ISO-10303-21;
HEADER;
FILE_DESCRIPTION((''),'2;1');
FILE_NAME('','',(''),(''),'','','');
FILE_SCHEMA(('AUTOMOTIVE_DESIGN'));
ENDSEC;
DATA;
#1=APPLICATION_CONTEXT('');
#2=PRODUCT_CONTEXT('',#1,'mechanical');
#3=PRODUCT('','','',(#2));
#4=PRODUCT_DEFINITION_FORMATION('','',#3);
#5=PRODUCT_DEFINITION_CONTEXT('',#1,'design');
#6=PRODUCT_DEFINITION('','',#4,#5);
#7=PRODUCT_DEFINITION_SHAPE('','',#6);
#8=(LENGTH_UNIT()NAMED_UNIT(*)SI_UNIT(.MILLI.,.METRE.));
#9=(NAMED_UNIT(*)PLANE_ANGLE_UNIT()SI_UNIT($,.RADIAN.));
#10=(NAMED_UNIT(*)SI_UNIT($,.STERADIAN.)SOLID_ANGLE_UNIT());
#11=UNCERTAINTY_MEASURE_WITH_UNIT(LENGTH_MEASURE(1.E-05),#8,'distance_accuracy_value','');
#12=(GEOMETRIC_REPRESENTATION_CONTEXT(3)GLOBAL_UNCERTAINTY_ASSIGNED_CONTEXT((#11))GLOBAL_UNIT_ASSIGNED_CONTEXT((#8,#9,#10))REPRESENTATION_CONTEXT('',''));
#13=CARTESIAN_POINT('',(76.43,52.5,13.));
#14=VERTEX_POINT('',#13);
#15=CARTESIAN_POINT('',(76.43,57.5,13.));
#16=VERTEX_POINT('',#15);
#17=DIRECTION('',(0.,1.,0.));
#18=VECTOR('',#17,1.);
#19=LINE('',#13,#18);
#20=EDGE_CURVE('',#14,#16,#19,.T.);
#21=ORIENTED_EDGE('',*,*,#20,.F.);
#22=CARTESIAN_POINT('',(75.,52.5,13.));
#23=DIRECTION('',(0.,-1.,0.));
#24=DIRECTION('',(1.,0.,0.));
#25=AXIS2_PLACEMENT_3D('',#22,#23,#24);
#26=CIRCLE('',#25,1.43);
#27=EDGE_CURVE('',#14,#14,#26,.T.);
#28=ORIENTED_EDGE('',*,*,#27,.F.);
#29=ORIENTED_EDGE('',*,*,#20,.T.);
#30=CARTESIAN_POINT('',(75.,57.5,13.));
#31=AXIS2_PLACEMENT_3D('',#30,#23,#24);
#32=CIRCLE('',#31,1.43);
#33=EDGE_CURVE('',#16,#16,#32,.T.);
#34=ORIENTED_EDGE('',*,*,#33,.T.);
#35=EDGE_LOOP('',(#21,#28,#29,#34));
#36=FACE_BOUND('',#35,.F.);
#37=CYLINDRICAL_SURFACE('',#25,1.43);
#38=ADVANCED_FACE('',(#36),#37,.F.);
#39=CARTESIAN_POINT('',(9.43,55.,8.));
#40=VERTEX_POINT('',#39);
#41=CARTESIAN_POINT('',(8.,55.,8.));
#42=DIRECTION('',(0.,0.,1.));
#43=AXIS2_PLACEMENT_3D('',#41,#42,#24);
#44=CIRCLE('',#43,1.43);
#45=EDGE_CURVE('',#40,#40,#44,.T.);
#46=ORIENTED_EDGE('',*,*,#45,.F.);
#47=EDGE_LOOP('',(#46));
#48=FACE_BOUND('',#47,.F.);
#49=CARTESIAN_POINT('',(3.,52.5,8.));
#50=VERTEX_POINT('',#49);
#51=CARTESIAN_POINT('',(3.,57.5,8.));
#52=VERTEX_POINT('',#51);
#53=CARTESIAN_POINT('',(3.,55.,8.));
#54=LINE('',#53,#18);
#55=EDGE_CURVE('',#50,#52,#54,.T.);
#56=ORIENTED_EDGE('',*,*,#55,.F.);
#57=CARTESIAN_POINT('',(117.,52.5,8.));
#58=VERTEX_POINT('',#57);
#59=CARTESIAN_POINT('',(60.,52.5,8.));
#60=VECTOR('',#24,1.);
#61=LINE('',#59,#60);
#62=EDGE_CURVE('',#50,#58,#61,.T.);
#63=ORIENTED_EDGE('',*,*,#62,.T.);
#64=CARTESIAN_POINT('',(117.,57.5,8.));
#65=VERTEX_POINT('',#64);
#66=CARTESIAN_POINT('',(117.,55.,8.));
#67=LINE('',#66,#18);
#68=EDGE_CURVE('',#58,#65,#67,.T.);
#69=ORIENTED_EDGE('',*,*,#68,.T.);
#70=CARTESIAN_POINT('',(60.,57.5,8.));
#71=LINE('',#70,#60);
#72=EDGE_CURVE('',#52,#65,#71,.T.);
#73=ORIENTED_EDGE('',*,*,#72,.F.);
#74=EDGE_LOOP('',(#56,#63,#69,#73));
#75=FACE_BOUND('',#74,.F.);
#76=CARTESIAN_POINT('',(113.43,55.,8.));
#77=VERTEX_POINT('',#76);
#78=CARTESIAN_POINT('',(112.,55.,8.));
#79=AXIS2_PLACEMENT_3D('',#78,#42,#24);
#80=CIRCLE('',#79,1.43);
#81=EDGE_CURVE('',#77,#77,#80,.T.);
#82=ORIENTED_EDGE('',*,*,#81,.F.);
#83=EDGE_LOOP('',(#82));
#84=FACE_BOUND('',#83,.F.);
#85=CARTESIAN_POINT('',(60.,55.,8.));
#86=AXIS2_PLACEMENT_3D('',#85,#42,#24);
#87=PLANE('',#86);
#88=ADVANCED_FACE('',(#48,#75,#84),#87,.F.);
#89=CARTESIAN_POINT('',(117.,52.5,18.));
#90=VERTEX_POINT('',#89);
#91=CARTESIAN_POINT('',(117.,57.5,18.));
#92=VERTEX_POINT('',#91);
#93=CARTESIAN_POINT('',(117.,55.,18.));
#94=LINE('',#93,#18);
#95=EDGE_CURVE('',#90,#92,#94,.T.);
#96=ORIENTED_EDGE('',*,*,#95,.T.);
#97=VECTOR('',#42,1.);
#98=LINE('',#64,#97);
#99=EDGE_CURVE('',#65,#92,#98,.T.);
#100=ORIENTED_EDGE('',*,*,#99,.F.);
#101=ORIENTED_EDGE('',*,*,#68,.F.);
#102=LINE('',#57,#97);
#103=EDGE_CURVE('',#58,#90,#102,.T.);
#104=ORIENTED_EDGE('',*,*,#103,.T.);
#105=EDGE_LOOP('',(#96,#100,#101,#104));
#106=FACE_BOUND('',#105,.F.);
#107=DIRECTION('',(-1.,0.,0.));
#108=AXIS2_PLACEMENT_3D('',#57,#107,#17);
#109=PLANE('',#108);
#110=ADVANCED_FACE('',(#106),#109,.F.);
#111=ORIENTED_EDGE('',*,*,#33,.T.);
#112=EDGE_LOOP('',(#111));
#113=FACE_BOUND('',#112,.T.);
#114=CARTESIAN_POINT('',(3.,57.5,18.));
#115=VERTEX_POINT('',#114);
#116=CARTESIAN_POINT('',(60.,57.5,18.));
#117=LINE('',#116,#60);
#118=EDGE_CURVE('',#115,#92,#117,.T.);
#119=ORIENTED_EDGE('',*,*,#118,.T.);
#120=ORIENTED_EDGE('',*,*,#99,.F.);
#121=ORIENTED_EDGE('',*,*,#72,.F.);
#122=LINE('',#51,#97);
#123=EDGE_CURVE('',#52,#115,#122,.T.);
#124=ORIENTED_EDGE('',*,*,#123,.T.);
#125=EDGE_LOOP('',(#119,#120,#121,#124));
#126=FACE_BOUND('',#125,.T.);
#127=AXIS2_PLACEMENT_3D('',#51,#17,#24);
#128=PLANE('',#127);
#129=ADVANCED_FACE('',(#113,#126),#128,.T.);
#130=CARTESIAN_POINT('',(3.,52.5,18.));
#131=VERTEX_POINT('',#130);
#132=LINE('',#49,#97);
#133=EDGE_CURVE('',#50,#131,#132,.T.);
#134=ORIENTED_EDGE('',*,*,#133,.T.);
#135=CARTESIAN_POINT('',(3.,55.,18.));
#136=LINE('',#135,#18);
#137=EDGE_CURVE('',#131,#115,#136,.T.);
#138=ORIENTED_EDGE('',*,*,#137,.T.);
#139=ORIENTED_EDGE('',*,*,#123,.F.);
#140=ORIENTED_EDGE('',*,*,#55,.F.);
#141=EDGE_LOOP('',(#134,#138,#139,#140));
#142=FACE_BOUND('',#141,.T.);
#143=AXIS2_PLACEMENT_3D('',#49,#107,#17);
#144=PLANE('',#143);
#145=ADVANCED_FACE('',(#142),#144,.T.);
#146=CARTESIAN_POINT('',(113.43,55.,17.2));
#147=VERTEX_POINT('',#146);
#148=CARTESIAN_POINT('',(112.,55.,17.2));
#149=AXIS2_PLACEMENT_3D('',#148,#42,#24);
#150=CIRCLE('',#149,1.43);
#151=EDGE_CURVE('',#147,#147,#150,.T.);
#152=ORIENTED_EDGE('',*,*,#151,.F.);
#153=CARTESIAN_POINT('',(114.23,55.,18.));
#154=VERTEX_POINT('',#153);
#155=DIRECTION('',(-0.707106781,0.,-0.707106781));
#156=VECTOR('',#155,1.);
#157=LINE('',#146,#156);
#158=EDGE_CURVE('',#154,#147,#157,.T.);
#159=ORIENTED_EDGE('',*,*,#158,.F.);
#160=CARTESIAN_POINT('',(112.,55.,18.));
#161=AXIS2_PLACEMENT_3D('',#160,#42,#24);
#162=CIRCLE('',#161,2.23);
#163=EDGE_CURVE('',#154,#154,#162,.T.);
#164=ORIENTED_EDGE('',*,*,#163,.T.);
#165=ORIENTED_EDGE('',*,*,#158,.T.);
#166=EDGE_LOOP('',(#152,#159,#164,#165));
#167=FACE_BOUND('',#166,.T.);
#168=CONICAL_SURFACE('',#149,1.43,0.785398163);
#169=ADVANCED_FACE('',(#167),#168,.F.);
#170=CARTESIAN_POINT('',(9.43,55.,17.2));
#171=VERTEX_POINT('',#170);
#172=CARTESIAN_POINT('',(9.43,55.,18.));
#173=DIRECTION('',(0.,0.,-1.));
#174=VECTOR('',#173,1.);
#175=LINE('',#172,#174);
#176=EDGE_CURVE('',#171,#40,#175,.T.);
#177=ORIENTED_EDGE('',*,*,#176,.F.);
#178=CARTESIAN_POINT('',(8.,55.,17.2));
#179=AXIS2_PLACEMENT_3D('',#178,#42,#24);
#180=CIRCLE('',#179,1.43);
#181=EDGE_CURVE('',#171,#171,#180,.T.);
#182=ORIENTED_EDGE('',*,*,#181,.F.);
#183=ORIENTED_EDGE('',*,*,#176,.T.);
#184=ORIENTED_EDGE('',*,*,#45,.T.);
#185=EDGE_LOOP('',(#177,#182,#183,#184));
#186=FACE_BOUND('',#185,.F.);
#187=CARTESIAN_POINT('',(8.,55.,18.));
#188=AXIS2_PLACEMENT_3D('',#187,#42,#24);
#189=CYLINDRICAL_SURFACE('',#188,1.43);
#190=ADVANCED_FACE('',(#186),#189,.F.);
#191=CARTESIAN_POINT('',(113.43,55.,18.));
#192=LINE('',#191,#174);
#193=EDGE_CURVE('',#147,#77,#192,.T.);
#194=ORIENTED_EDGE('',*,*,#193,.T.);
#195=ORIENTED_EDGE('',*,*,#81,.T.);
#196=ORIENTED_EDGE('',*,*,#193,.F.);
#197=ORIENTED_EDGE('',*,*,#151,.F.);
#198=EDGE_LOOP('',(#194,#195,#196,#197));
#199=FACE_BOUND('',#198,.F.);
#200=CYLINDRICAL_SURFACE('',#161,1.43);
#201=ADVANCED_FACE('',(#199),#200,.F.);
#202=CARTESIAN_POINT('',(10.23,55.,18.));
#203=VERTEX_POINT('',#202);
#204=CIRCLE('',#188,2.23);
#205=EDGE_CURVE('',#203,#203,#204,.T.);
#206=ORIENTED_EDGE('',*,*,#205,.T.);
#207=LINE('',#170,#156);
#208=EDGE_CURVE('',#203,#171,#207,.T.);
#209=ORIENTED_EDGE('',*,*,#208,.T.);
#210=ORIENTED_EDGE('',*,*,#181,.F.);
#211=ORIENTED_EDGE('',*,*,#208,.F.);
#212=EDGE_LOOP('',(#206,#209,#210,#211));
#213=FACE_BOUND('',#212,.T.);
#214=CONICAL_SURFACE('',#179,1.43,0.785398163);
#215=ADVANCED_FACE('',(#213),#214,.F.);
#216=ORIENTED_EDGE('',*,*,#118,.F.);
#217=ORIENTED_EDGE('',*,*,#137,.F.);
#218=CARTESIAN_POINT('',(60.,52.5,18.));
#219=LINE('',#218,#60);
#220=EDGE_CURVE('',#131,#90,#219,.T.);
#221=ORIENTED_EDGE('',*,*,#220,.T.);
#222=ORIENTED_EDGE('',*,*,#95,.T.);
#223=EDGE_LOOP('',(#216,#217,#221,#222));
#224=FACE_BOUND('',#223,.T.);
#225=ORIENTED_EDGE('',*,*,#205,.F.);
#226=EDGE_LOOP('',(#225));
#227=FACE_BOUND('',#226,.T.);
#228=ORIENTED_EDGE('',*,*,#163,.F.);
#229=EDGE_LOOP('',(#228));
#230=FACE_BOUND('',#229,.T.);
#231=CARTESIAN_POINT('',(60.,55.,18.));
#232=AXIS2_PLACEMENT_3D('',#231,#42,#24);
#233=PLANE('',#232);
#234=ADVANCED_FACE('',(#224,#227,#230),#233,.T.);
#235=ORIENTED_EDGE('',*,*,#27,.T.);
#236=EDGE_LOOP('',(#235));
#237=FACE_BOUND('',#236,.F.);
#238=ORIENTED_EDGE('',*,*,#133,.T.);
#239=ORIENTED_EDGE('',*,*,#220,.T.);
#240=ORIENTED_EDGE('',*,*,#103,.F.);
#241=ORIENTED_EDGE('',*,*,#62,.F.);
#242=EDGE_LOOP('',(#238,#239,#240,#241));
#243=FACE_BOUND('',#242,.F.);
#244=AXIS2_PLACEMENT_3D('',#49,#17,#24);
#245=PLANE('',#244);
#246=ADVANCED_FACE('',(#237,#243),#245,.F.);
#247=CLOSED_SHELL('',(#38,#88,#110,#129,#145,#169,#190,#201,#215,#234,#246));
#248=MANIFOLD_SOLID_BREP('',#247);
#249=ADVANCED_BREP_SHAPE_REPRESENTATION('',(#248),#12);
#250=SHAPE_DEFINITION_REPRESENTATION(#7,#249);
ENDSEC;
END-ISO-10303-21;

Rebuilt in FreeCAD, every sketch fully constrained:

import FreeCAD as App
import Part
import Sketcher


def edges_at(feature, points):
    """Names of the edges that pass closest to the given points."""
    edges = feature.Shape.Edges
    near = lambda p: min(range(len(edges)), key=lambda i: edges[i].distToShape(Part.Vertex(*p))[0])
    return sorted({f"Edge{near(p) + 1}" for p in points})


def add_polygon(sketch, points):
    """Adds a closed chain of lines whose ends are joined by coincident constraints."""
    first, n = sketch.GeometryCount, len(points)
    for a, b in zip(points, points[1:] + points[:1]):
        sketch.addGeometry(Part.LineSegment(App.Vector(*a, 0), App.Vector(*b, 0)), False)
    for i in range(n):
        sketch.addConstraint(Sketcher.Constraint("Coincident", first + i, 2, first + (i + 1) % n, 1))

doc = App.newDocument("Part")
body = doc.addObject("PartDesign::Body", "Body")

sketch1 = body.newObject("Sketcher::SketchObject", "Sketch")
sketch1.AttachmentSupport = (doc.getObject("XY_Plane"), [""])
sketch1.MapMode = "FlatFace"
add_polygon(sketch1, [(3, 48), (3, 42), (117, 42), (117, 48)])
sketch1.addConstraint([
    Sketcher.Constraint("Vertical", 0),
    Sketcher.Constraint("Horizontal", 1),
    Sketcher.Constraint("Vertical", 2),
    Sketcher.Constraint("Horizontal", 3),
    Sketcher.Constraint("DistanceX", 1, 1, 1, 2, 114.0),
    Sketcher.Constraint("DistanceY", 0, 2, 0, 1, 5.0),
    Sketcher.Constraint("DistanceX", -1, 1, 0, 2, 3.0),
    Sketcher.Constraint("DistanceY", -1, 1, 0, 2, 42.5),
])
pad1 = body.newObject("PartDesign::Pad", "Pad")
pad1.Profile = sketch1
pad1.Length = 10

sketch2 = body.newObject("Sketcher::SketchObject", "Sketch001")
sketch2.AttachmentSupport = (doc.getObject("XY_Plane"), [""])
sketch2.MapMode = "FlatFace"
sketch2.AttachmentOffset = App.Placement(App.Vector(0, 0, 10), App.Rotation())
sketch2.addGeometry([
    Part.Circle(App.Vector(8, 45, 0), App.Vector(0, 0, 1), 1.4),
    Part.Circle(App.Vector(112, 45, 0), App.Vector(0, 0, 1), 1.4),
], False)
sketch2.addConstraint([
    Sketcher.Constraint("Equal", 0, 1),
    Sketcher.Constraint("Horizontal", 0, 3, 1, 3),
    Sketcher.Constraint("Diameter", 0, 2.86),
    Sketcher.Constraint("DistanceX", -1, 1, 0, 3, 8.0),
    Sketcher.Constraint("DistanceY", -1, 1, 0, 3, 45.0),
    Sketcher.Constraint("DistanceX", -1, 1, 1, 3, 112.0),
])
pocket1 = body.newObject("PartDesign::Pocket", "Pocket")
pocket1.Profile = sketch2
pocket1.Length = 10
doc.recompute()

chamfer = body.newObject("PartDesign::Chamfer", "Chamfer")
chamfer.Base = (pocket1, edges_at(pocket1, [(110.57, 45, 10), (6.57, 45, 10)]))
chamfer.Size = 0.8

sketch3 = body.newObject("Sketcher::SketchObject", "Sketch002")
sketch3.AttachmentSupport = (doc.getObject("XZ_Plane"), [""])
sketch3.MapMode = "FlatFace"
sketch3.AttachmentOffset = App.Placement(App.Vector(0, 0, -42.5), App.Rotation())
sketch3.addGeometry(Part.Circle(App.Vector(75, 5, 0), App.Vector(0, 0, 1), 1.4), False)
sketch3.addConstraint([
    Sketcher.Constraint("Diameter", 0, 2.86),
    Sketcher.Constraint("DistanceX", -1, 1, 0, 3, 75.0),
    Sketcher.Constraint("DistanceY", -1, 1, 0, 3, 5.0),
])
pocket2 = body.newObject("PartDesign::Pocket", "Pocket001")
pocket2.Profile = sketch3
pocket2.Length = 5
body2 = doc.addObject("PartDesign::Body", "Body001")
doc.recompute()

body.Placement = App.Placement(App.Vector(0, 10, 8), App.Rotation(App.Vector(0, 0, 1), 0))
boolean = body2.newObject("PartDesign::Boolean", "Boolean")
boolean.Type = "Fuse"
boolean.addObjects([body])

doc.recompute()
